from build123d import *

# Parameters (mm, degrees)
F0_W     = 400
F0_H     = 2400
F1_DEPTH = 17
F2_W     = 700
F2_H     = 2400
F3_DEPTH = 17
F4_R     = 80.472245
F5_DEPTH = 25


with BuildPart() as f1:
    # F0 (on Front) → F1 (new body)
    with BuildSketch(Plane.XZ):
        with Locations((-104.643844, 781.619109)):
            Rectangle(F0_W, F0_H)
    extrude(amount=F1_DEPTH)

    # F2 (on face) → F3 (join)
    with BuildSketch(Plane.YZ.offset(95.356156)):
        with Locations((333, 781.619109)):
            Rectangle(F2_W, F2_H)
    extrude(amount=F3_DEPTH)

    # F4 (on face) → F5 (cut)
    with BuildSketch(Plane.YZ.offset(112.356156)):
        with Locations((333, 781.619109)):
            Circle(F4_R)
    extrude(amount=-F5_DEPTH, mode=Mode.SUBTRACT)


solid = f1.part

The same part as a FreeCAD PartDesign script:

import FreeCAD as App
import Part
import Sketcher

V = App.Vector
Q = App.Units.Quantity

doc = App.newDocument("Part")
body = doc.addObject("PartDesign::Body", "Body")

sketch1 = body.newObject("Sketcher::SketchObject", "Sketch")
sketch1.AttachmentSupport = (doc.getObject("XZ_Plane"), [""])
sketch1.MapMode = "FlatFace"
sketch1.addGeometry(Part.LineSegment(V(-304.643844, 1981.619109, 0), V(-304.643844, -418.380891, 0)), False)
sketch1.addGeometry(Part.LineSegment(V(-304.643844, -418.380891, 0), V(95.356156, -418.380891, 0)), False)
sketch1.addGeometry(Part.LineSegment(V(95.356156, -418.380891, 0), V(95.356156, 1981.619109, 0)), False)
sketch1.addGeometry(Part.LineSegment(V(95.356156, 1981.619109, 0), V(-304.643844, 1981.619109, 0)), False)
sketch1.addConstraint(Sketcher.Constraint("Coincident", 0, 2, 1, 1))
sketch1.addConstraint(Sketcher.Constraint("Coincident", 1, 2, 2, 1))
sketch1.addConstraint(Sketcher.Constraint("Coincident", 2, 2, 3, 1))
sketch1.addConstraint(Sketcher.Constraint("Coincident", 3, 2, 0, 1))
sketch1.addConstraint(Sketcher.Constraint("Vertical", 0))
sketch1.addConstraint(Sketcher.Constraint("Horizontal", 1))
sketch1.addConstraint(Sketcher.Constraint("Vertical", 2))
sketch1.addConstraint(Sketcher.Constraint("Horizontal", 3))
sketch1.addConstraint(Sketcher.Constraint("DistanceX", 1, 1, 1, 2, Q("400 mm")))
sketch1.addConstraint(Sketcher.Constraint("DistanceY", 0, 2, 0, 1, Q("2400 mm")))
sketch1.addConstraint(Sketcher.Constraint("DistanceY", 0, 2, -1, 1, Q("418.380891 mm")))
sketch1.addConstraint(Sketcher.Constraint("DistanceX", 0, 2, -1, 1, Q("304.643844 mm")))
pad1 = body.newObject("PartDesign::Pad", "Pad")
pad1.Profile = sketch1
pad1.Length = 17

sketch2 = body.newObject("Sketcher::SketchObject", "Sketch001")
sketch2.AttachmentSupport = (doc.getObject("YZ_Plane"), [""])
sketch2.MapMode = "FlatFace"
sketch2.AttachmentOffset = App.Placement(V(0, 0, 95.356156), App.Rotation())
sketch2.addGeometry(Part.LineSegment(V(-17, 1981.619109, 0), V(-17, -418.380891, 0)), False)
sketch2.addGeometry(Part.LineSegment(V(-17, -418.380891, 0), V(683, -418.380891, 0)), False)
sketch2.addGeometry(Part.LineSegment(V(683, -418.380891, 0), V(683, 1981.619109, 0)), False)
sketch2.addGeometry(Part.LineSegment(V(683, 1981.619109, 0), V(-17, 1981.619109, 0)), False)
sketch2.addConstraint(Sketcher.Constraint("Coincident", 0, 2, 1, 1))
sketch2.addConstraint(Sketcher.Constraint("Coincident", 1, 2, 2, 1))
sketch2.addConstraint(Sketcher.Constraint("Coincident", 2, 2, 3, 1))
sketch2.addConstraint(Sketcher.Constraint("Coincident", 3, 2, 0, 1))
sketch2.addConstraint(Sketcher.Constraint("Vertical", 0))
sketch2.addConstraint(Sketcher.Constraint("Horizontal", 1))
sketch2.addConstraint(Sketcher.Constraint("Vertical", 2))
sketch2.addConstraint(Sketcher.Constraint("Horizontal", 3))
sketch2.addConstraint(Sketcher.Constraint("DistanceX", 1, 1, 1, 2, Q("700 mm")))
sketch2.addConstraint(Sketcher.Constraint("DistanceY", 0, 2, 0, 1, Q("2400 mm")))
sketch2.addConstraint(Sketcher.Constraint("DistanceX", 0, 2, -1, 1, Q("17 mm")))
sketch2.addConstraint(Sketcher.Constraint("DistanceY", 0, 2, -1, 1, Q("418.380891 mm")))
pad2 = body.newObject("PartDesign::Pad", "Pad001")
pad2.Profile = sketch2
pad2.Length = 17

sketch3 = body.newObject("Sketcher::SketchObject", "Sketch002")
sketch3.AttachmentSupport = (doc.getObject("YZ_Plane"), [""])
sketch3.MapMode = "FlatFace"
sketch3.AttachmentOffset = App.Placement(V(0, 0, 112.356156), App.Rotation())
sketch3.addGeometry(Part.Circle(V(333, 781.619109, 0), V(0, 0, 1), 80.472245), False)
sketch3.addConstraint(Sketcher.Constraint("DistanceX", -1, 1, 0, 3, Q("333 mm")))
sketch3.addConstraint(Sketcher.Constraint("Diameter", 0, Q("160.94449 mm")))
sketch3.addConstraint(Sketcher.Constraint("DistanceY", -1, 1, 0, 3, Q("781.619109 mm")))
pocket1 = body.newObject("PartDesign::Pocket", "Pocket")
pocket1.Profile = sketch3
pocket1.Length = 25

doc.recompute()
